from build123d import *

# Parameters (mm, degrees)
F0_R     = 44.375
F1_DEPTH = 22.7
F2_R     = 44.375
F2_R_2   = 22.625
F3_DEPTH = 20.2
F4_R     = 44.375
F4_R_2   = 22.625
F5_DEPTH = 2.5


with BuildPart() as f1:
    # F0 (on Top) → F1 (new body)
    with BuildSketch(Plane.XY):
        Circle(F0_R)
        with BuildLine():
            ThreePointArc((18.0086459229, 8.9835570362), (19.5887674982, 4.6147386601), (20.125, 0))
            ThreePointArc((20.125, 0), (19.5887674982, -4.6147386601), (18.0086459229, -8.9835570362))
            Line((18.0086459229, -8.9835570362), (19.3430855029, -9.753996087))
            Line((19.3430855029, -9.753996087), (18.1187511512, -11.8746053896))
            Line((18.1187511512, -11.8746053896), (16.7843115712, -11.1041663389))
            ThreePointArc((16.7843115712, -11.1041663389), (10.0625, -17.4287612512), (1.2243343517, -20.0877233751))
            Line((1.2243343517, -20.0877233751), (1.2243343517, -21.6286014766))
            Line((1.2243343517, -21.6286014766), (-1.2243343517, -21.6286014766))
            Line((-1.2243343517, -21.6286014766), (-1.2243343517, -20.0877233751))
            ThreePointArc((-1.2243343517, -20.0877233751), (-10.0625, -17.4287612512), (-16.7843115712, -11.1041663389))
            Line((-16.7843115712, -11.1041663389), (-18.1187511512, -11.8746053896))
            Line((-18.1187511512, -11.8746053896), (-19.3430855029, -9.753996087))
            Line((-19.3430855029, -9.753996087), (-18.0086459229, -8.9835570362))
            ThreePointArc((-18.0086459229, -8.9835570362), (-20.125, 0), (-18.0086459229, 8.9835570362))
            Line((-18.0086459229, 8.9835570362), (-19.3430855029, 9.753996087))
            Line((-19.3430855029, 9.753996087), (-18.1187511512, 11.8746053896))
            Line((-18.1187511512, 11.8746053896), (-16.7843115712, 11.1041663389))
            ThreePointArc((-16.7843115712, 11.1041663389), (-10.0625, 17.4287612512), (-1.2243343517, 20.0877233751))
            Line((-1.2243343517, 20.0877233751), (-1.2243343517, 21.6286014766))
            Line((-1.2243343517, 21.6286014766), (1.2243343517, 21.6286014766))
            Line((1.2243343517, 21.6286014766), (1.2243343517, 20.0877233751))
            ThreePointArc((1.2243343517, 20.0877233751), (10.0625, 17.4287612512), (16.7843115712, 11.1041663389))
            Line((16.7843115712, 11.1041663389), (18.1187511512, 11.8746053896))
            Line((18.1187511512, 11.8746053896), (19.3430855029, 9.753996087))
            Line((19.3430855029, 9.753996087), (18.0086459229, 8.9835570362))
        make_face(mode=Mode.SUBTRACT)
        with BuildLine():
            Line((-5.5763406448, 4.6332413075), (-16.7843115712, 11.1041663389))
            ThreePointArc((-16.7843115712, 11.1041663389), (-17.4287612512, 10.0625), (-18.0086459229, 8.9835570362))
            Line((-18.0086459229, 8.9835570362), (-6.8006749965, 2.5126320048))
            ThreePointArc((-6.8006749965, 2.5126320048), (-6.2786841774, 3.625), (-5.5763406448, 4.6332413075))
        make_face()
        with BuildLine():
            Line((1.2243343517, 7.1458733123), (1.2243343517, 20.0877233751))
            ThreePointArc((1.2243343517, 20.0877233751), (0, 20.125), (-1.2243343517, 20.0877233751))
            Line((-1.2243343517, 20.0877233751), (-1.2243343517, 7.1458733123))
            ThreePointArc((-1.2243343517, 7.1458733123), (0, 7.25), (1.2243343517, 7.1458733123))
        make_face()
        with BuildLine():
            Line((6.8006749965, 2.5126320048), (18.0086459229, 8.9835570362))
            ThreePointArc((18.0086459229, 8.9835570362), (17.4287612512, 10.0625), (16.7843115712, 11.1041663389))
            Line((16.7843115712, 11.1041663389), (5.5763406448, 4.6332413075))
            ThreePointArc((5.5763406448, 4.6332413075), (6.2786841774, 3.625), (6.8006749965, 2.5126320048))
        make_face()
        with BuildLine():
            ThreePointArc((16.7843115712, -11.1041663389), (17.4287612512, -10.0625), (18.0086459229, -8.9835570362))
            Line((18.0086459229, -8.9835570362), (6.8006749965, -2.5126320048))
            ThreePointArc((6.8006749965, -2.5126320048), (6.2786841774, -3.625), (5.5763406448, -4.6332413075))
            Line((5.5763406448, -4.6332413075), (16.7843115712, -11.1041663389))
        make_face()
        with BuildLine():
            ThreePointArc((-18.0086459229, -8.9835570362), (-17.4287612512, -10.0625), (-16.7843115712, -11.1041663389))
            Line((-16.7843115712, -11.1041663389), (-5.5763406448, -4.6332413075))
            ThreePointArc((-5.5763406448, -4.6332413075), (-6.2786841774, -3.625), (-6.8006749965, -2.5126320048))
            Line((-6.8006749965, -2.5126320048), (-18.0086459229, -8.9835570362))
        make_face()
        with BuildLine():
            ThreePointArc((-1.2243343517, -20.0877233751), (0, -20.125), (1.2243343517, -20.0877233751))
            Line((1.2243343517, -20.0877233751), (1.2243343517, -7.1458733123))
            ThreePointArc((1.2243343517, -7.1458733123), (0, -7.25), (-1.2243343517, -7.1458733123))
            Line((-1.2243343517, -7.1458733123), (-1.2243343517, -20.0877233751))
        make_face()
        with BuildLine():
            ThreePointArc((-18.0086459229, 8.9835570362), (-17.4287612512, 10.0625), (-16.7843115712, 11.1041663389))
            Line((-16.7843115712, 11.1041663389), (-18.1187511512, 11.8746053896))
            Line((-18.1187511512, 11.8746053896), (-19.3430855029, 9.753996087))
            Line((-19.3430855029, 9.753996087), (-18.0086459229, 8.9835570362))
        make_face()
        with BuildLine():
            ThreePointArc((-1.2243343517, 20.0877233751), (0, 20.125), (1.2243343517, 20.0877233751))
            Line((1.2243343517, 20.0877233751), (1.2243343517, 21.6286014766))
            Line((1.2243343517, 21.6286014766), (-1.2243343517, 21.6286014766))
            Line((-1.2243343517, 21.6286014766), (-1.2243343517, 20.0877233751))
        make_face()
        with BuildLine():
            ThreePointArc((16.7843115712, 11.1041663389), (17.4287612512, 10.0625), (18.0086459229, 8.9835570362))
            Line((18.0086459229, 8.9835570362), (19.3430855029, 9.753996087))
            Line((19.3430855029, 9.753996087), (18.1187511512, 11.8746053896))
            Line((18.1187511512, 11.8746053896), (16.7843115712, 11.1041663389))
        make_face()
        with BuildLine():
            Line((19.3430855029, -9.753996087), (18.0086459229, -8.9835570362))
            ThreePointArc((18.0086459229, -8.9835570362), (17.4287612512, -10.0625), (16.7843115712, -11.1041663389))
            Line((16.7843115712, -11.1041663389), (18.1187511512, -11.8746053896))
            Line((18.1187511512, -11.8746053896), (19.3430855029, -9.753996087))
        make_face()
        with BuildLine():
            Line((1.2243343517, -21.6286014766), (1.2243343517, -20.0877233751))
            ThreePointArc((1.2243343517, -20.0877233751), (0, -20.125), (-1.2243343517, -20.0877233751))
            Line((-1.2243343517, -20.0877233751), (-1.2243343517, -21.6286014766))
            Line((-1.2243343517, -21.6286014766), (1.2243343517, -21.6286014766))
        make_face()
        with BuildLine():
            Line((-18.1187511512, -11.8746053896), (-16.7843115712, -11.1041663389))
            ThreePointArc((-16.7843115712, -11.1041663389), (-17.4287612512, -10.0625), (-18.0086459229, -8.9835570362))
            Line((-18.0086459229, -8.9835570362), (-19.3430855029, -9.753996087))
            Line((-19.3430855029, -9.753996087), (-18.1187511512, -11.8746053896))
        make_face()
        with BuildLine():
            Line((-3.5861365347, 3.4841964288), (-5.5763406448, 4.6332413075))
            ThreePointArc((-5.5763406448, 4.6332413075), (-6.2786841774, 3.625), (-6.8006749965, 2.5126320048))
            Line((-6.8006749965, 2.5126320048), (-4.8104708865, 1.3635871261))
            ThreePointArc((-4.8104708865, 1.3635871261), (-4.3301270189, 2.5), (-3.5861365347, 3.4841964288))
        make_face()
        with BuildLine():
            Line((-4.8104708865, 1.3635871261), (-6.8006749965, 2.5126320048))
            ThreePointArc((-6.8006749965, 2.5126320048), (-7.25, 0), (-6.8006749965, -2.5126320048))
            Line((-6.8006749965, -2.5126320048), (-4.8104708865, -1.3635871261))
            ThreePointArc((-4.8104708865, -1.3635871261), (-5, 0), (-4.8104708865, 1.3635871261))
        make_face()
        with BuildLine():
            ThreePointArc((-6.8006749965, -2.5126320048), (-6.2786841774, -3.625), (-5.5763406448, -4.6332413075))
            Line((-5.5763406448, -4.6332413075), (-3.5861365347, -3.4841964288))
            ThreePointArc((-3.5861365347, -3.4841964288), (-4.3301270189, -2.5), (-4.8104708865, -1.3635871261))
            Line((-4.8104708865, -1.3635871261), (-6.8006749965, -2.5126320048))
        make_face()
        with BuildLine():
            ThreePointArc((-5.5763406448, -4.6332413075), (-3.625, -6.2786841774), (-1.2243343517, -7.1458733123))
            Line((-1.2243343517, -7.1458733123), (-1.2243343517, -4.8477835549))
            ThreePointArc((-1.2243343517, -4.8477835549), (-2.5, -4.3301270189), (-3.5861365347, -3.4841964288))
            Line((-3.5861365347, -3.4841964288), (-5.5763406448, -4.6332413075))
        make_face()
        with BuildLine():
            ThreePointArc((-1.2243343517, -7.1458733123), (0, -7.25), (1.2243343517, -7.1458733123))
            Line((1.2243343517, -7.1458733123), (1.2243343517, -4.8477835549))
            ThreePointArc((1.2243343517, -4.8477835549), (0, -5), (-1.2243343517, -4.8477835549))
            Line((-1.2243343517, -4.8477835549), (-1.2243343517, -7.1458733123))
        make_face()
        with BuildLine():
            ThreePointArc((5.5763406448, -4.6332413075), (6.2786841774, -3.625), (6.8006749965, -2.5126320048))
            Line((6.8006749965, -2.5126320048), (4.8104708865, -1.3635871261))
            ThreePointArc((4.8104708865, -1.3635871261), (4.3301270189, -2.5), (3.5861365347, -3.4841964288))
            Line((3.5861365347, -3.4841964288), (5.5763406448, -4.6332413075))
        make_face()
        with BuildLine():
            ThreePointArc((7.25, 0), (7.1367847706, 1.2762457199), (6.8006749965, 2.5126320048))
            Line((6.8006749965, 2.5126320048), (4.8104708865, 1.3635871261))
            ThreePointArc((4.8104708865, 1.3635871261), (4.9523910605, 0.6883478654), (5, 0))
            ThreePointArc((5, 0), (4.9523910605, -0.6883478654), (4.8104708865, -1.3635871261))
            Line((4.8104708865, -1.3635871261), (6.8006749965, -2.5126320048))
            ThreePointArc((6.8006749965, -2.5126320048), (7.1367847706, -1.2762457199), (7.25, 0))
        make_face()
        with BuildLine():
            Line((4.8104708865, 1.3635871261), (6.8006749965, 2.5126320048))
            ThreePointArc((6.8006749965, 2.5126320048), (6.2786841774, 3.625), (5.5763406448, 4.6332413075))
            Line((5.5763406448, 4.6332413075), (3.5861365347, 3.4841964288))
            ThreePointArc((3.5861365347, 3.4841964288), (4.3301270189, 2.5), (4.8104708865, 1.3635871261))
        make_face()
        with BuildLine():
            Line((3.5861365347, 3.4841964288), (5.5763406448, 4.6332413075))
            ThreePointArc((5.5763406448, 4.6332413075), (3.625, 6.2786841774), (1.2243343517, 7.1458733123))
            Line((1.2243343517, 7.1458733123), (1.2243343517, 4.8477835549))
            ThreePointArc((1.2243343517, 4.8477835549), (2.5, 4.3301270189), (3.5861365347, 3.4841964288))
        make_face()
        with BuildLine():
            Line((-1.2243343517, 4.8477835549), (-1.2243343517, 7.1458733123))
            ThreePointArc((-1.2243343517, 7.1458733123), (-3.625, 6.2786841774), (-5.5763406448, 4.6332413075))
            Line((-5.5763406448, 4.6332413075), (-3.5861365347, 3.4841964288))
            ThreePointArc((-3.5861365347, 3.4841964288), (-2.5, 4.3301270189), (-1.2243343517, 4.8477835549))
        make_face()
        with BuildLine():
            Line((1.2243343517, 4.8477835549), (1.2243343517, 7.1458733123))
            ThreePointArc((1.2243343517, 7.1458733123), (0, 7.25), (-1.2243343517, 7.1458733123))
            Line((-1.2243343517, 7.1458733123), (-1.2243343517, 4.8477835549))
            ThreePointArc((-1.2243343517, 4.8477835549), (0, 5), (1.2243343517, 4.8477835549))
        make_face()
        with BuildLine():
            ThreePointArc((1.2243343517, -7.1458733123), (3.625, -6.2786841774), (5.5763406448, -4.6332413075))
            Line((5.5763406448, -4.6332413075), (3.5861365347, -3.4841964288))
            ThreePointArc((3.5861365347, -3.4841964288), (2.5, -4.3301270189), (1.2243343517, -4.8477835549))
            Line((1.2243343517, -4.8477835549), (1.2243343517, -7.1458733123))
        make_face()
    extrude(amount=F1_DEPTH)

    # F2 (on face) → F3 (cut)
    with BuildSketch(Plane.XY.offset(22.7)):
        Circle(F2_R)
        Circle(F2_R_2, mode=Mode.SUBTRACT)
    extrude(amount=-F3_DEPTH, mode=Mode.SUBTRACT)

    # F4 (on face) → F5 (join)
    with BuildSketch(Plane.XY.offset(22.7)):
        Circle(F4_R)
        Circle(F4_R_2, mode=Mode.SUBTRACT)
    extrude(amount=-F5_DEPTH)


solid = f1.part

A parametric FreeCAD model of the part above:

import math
import FreeCAD as App
import Part
import Sketcher
Q = App.Units.Quantity

doc = App.newDocument("Part")
params = doc.addObject("Spreadsheet::Sheet", "Params")
for row, (alias, value) in enumerate([
    ("sketch1_radius", "5 mm"),
    ("sketch1_diameter", "88.75 mm"),
    ("sketch1_radius2", "7.25 mm"),
    ("pad1_length", "22.7 mm"),
    ("sketch2_diameter", "88.75 mm"),
    ("sketch2_diameter2", "45.25 mm"),
    ("pocket1_length", "20.2 mm"),
    ("sketch3_diameter", "88.75 mm"),
    ("sketch3_diameter2", "45.25 mm"),
    ("pad2_length", "2.5 mm"),
], start=1):
    params.set(f"A{row}", alias)
    params.set(f"B{row}", "=" + value)
    params.setAlias(f"B{row}", alias)

body = doc.addObject("PartDesign::Body", "Body")

# Sketch on XY plane
sketch1 = body.newObject("Sketcher::SketchObject", "Sketch")
sketch1.AttachmentSupport = (doc.getObject("XY_Plane"), [""])
sketch1.MapMode = "FlatFace"
sketch1.addGeometry([
    Part.Circle(App.Vector(0, 0, 0), App.Vector(0, 0, 1), 44.4),  # 0
    Part.ArcOfCircle(Part.Circle(App.Vector(0, 0, 0), App.Vector(0, 0, 1), 7.3), math.radians(-140), math.radians(-100)),  # 1
    Part.LineSegment(App.Vector(-1.2, -7.1, 0), App.Vector(-1.2, -20.1, 0)),  # 2
    Part.ArcOfCircle(Part.Circle(App.Vector(0, 0, 0), App.Vector(0, 0, 1), 20.1), math.radians(-147), math.radians(-93)),  # 3
    Part.LineSegment(App.Vector(-16.8, -11.1, 0), App.Vector(-5.6, -4.6, 0)),  # 4
    Part.ArcOfCircle(Part.Circle(App.Vector(0, 0, 0), App.Vector(0, 0, 1), 5), math.radians(104), math.radians(136)),  # 5
    Part.ArcOfCircle(Part.Circle(App.Vector(0, 0, 0), App.Vector(0, 0, 1), 5), math.radians(76), math.radians(104)),  # 6
    Part.ArcOfCircle(Part.Circle(App.Vector(0, 0, 0), App.Vector(0, 0, 1), 5), math.radians(44), math.radians(76)),  # 7
    Part.ArcOfCircle(Part.Circle(App.Vector(0, 0, 0), App.Vector(0, 0, 1), 5), math.radians(16), math.radians(44)),  # 8
    Part.ArcOfCircle(Part.Circle(App.Vector(0, 0, 0), App.Vector(0, 0, 1), 5), math.radians(0), math.radians(15.83)),  # 9
    Part.ArcOfCircle(Part.Circle(App.Vector(0, 0, 0), App.Vector(0, 0, 1), 5), math.radians(-15.83), math.radians(0)),  # 10
    Part.ArcOfCircle(Part.Circle(App.Vector(0, 0, 0), App.Vector(0, 0, 1), 5), math.radians(-44), math.radians(-16)),  # 11
    Part.ArcOfCircle(Part.Circle(App.Vector(0, 0, 0), App.Vector(0, 0, 1), 5), math.radians(-76), math.radians(-44)),  # 12
    Part.ArcOfCircle(Part.Circle(App.Vector(0, 0, 0), App.Vector(0, 0, 1), 5), math.radians(-104), math.radians(-76)),  # 13
    Part.ArcOfCircle(Part.Circle(App.Vector(0, 0, 0), App.Vector(0, 0, 1), 5), math.radians(-136), math.radians(-104)),  # 14
    Part.ArcOfCircle(Part.Circle(App.Vector(0, 0, 0), App.Vector(0, 0, 1), 5), math.radians(-164), math.radians(-136)),  # 15
    Part.ArcOfCircle(Part.Circle(App.Vector(0, 0, 0), App.Vector(0, 0, 1), 5), math.radians(164), math.radians(196)),  # 16
    Part.ArcOfCircle(Part.Circle(App.Vector(0, 0, 0), App.Vector(0, 0, 1), 5), math.radians(136), math.radians(164)),  # 17
    Part.LineSegment(App.Vector(5.6, -4.6, 0), App.Vector(16.8, -11.1, 0)),  # 18
    Part.ArcOfCircle(Part.Circle(App.Vector(0, 0, 0), App.Vector(0, 0, 1), 20.1), math.radians(-87), math.radians(-33)),  # 19
    Part.LineSegment(App.Vector(1.2, -20.1, 0), App.Vector(1.2, -7.1, 0)),  # 20
    Part.ArcOfCircle(Part.Circle(App.Vector(0, 0, 0), App.Vector(0, 0, 1), 7.3), math.radians(-80), math.radians(-40)),  # 21
    Part.ArcOfCircle(Part.Circle(App.Vector(0, 0, 0), App.Vector(0, 0, 1), 7.2), math.radians(160), math.radians(200)),  # 22
    Part.LineSegment(App.Vector(-6.8, -2.5, 0), App.Vector(-18, -9, 0)),  # 23
    Part.ArcOfCircle(Part.Circle(App.Vector(0, 0, 0), App.Vector(0, 0, 1), 20.1), math.radians(153), math.radians(207)),  # 24
    Part.LineSegment(App.Vector(-18, 9, 0), App.Vector(-6.8, 2.5, 0)),  # 25
    Part.LineSegment(App.Vector(-1.2, 20.1, 0), App.Vector(-1.2, 7.1, 0)),  # 26
    Part.ArcOfCircle(Part.Circle(App.Vector(0, 0, 0), App.Vector(0, 0, 1), 7.3), math.radians(100), math.radians(140)),  # 27
    Part.LineSegment(App.Vector(-5.6, 4.6, 0), App.Vector(-16.8, 11.1, 0)),  # 28
    Part.ArcOfCircle(Part.Circle(App.Vector(0, 0, 0), App.Vector(0, 0, 1), 20.1), math.radians(93), math.radians(147)),  # 29
    Part.ArcOfCircle(Part.Circle(App.Vector(0, 0, 0), App.Vector(0, 0, 1), 7.3), math.radians(0), math.radians(20)),  # 30
    Part.LineSegment(App.Vector(6.8, 2.5, 0), App.Vector(18, 9, 0)),  # 31
    Part.ArcOfCircle(Part.Circle(App.Vector(0, 0, 0), App.Vector(0, 0, 1), 20.1), math.radians(0), math.radians(27)),  # 32
    Part.ArcOfCircle(Part.Circle(App.Vector(0, 0, 0), App.Vector(0, 0, 1), 20.1), math.radians(-27), math.radians(0)),  # 33
    Part.LineSegment(App.Vector(18, -9, 0), App.Vector(6.8, -2.5, 0)),  # 34
    Part.ArcOfCircle(Part.Circle(App.Vector(0, 0, 0), App.Vector(0, 0, 1), 7.3), math.radians(-20), math.radians(0)),  # 35
    Part.ArcOfCircle(Part.Circle(App.Vector(0, 0, 0), App.Vector(0, 0, 1), 7.3), math.radians(40), math.radians(80)),  # 36
    Part.LineSegment(App.Vector(1.2, 7.1, 0), App.Vector(1.2, 20.1, 0)),  # 37
    Part.ArcOfCircle(Part.Circle(App.Vector(0, 0, 0), App.Vector(0, 0, 1), 20.1), math.radians(33), math.radians(87)),  # 38
    Part.LineSegment(App.Vector(16.8, 11.1, 0), App.Vector(5.6, 4.6, 0)),  # 39
], False)
sketch1.addConstraint([
    Sketcher.Constraint("Coincident", 1, 2, 2, 1),
    Sketcher.Constraint("Coincident", 2, 2, 3, 2),
    Sketcher.Constraint("Coincident", 3, 1, 4, 1),
    Sketcher.Constraint("Coincident", 4, 2, 1, 1),
    Sketcher.Constraint("Tangent", 5, 1, 6, 2),
    Sketcher.Constraint("Tangent", 6, 1, 7, 2),
    Sketcher.Constraint("Tangent", 7, 1, 8, 2),
    Sketcher.Constraint("Tangent", 8, 1, 9, 2),
    Sketcher.Constraint("Tangent", 9, 1, 10, 2),
    Sketcher.Constraint("Tangent", 10, 1, 11, 2),
    Sketcher.Constraint("Tangent", 11, 1, 12, 2),
    Sketcher.Constraint("Tangent", 12, 1, 13, 2),
    Sketcher.Constraint("Tangent", 13, 1, 14, 2),
    Sketcher.Constraint("Tangent", 14, 1, 15, 2),
    Sketcher.Constraint("Tangent", 15, 1, 16, 2),
    Sketcher.Constraint("Tangent", 16, 1, 17, 2),
    Sketcher.Constraint("Tangent", 17, 1, 5, 2),
    Sketcher.Constraint("Coincident", 18, 2, 19, 2),
    Sketcher.Constraint("Coincident", 19, 1, 20, 1),
    Sketcher.Constraint("Coincident", 20, 2, 21, 1),
    Sketcher.Constraint("Coincident", 21, 2, 18, 1),
    Sketcher.Constraint("Coincident", 22, 2, 23, 1),
    Sketcher.Constraint("Coincident", 23, 2, 24, 2),
    Sketcher.Constraint("Coincident", 24, 1, 25, 1),
    Sketcher.Constraint("Coincident", 25, 2, 22, 1),
    Sketcher.Constraint("Coincident", 26, 2, 27, 1),
    Sketcher.Constraint("Coincident", 27, 2, 28, 1),
    Sketcher.Constraint("Coincident", 28, 2, 29, 2),
    Sketcher.Constraint("Coincident", 29, 1, 26, 1),
    Sketcher.Constraint("Coincident", 30, 2, 31, 1),
    Sketcher.Constraint("Coincident", 31, 2, 32, 2),
    Sketcher.Constraint("Tangent", 32, 1, 33, 2),
    Sketcher.Constraint("Coincident", 33, 1, 34, 1),
    Sketcher.Constraint("Coincident", 34, 2, 35, 1),
    Sketcher.Constraint("Tangent", 35, 2, 30, 1),
    Sketcher.Constraint("Coincident", 36, 2, 37, 1),
    Sketcher.Constraint("Coincident", 37, 2, 38, 2),
    Sketcher.Constraint("Coincident", 38, 1, 39, 1),
    Sketcher.Constraint("Coincident", 39, 2, 36, 1),
    Sketcher.Constraint("Vertical", 2),
    Sketcher.Constraint("Vertical", 20),
    Sketcher.Constraint("Vertical", 26),
    Sketcher.Constraint("Vertical", 37),
    Sketcher.Constraint("Coincident", 0, 3, -1, 1),
    Sketcher.Constraint("Coincident", 1, 3, -1, 1),
    Sketcher.Constraint("Coincident", 3, 3, -1, 1),
    Sketcher.Constraint("Coincident", 5, 3, -1, 1),
    Sketcher.Constraint("Coincident", 7, 3, -1, 1),
    Sketcher.Constraint("Coincident", 9, 3, -1, 1),
    Sketcher.Constraint("Coincident", 11, 3, -1, 1),
    Sketcher.Constraint("Coincident", 13, 3, -1, 1),
    Sketcher.Constraint("Coincident", 15, 3, -1, 1),
    Sketcher.Constraint("Coincident", 19, 3, -1, 1),
    Sketcher.Constraint("Coincident", 21, 3, -1, 1),
    Sketcher.Constraint("Coincident", 22, 3, -1, 1),
    Sketcher.Constraint("Coincident", 24, 3, -1, 1),
    Sketcher.Constraint("Coincident", 27, 3, -1, 1),
    Sketcher.Constraint("Coincident", 29, 3, -1, 1),
    Sketcher.Constraint("Coincident", 30, 3, -1, 1),
    Sketcher.Constraint("Coincident", 32, 3, -1, 1),
    Sketcher.Constraint("Coincident", 36, 3, -1, 1),
    Sketcher.Constraint("Coincident", 38, 3, -1, 1),
    Sketcher.Constraint("Equal", 3, 19),
    Sketcher.Constraint("Equal", 1, 21),
    Sketcher.Constraint("Equal", 21, 22),
    Sketcher.Constraint("Equal", 19, 24),
    Sketcher.Constraint("Equal", 22, 27),
    Sketcher.Constraint("Equal", 24, 29),
    Sketcher.Constraint("Equal", 27, 30),
    Sketcher.Constraint("Equal", 29, 32),
    Sketcher.Constraint("Equal", 32, 33),
    Sketcher.Constraint("Equal", 30, 35),
    Sketcher.Constraint("Equal", 35, 36),
    Sketcher.Constraint("Equal", 33, 38),
    Sketcher.Constraint("PointOnObject", 9, 1, -1),
    Sketcher.Constraint("PointOnObject", 32, 1, -1),
    Sketcher.Constraint("PointOnObject", 35, 2, -1),
    Sketcher.Constraint("Parallel", 4, 23),
    Sketcher.Constraint("Parallel", 18, 25),
    Sketcher.Constraint("Parallel", 25, 28),
    Sketcher.Constraint("Parallel", 23, 31),
    Sketcher.Constraint("Parallel", 28, 34),
    Sketcher.Constraint("Parallel", 31, 39),
    Sketcher.Constraint("Horizontal", 5, 1, 6, 1),
    Sketcher.Constraint("Horizontal", 12, 1, 13, 1),
    Sketcher.Constraint("Horizontal", 11, 1, 14, 1),
    Sketcher.Constraint("Horizontal", 10, 1, 15, 1),
    Sketcher.Constraint("Horizontal", 8, 1, 16, 1),
    Sketcher.Constraint("Horizontal", 7, 1, 17, 1),
    Sketcher.Constraint("Horizontal", 3, 1, 18, 2),
    Sketcher.Constraint("Horizontal", 2, 2, 19, 1),
    Sketcher.Constraint("Horizontal", 4, 2, 21, 2),
    Sketcher.Constraint("Horizontal", 25, 2, 30, 2),
    Sketcher.Constraint("Horizontal", 23, 2, 33, 1),
    Sketcher.Constraint("Horizontal", 26, 2, 36, 2),
    Sketcher.Constraint("Horizontal", 28, 2, 38, 1),
    Sketcher.Constraint("Vertical", 2, 2, 5, 1),
    Sketcher.Constraint("Vertical", 8, 1, 10, 1),
    Sketcher.Constraint("Vertical", 7, 1, 11, 1),
    Sketcher.Constraint("Vertical", 6, 1, 12, 1),
    Sketcher.Constraint("Vertical", 23, 2, 24, 1),
    Sketcher.Constraint("Vertical", 13, 1, 26, 2),
    Sketcher.Constraint("Vertical", 4, 2, 27, 2),
    Sketcher.Constraint("Equal", 18, 23),
    Sketcher.Constraint("Radius", 5, Q("5 mm")),
    Sketcher.Constraint("Diameter", 0, Q("88.75 mm")),
    Sketcher.Constraint("Angle", 4, Q("30 deg")),
    Sketcher.Constraint("Radius", 1, Q("7.25 mm")),
    Sketcher.Constraint("Radius", 3, Q("20.125 mm")),
    Sketcher.Constraint("DistanceY", 2, 2, 2, 1, Q("12.94185 mm")),
    Sketcher.Constraint("Distance", 4, Q("12.94185 mm")),
    Sketcher.Constraint("DistanceX", -1, 1, 8, 1, Q("4.810471 mm")),
    Sketcher.Constraint("DistanceX", -1, 1, 7, 1, Q("3.586137 mm")),
])
sketch1.setExpression("Constraints[104]", "Params.sketch1_radius")
sketch1.setExpression("Constraints[105]", "Params.sketch1_diameter")
sketch1.setExpression("Constraints[107]", "Params.sketch1_radius2")
pad1 = body.newObject("PartDesign::Pad", "Pad")
pad1.Profile = sketch1
pad1.setExpression("Length", "Params.pad1_length")

# Sketch on XY plane
sketch2 = body.newObject("Sketcher::SketchObject", "Sketch001")
sketch2.AttachmentSupport = (doc.getObject("XY_Plane"), [""])
sketch2.MapMode = "FlatFace"
sketch2.AttachmentOffset = App.Placement(App.Vector(0, 0, 22.7), App.Rotation())
sketch2.addGeometry([
    Part.Circle(App.Vector(0, 0, 0), App.Vector(0, 0, 1), 44),
    Part.Circle(App.Vector(0, 0, 0), App.Vector(0, 0, 1), 23),
], False)
sketch2.addConstraint([
    Sketcher.Constraint("Coincident", 0, 3, -1, 1),
    Sketcher.Constraint("Coincident", 1, 3, -1, 1),
    Sketcher.Constraint("Diameter", 0, Q("88.75 mm")),
    Sketcher.Constraint("Diameter", 1, Q("45.25 mm")),
])
sketch2.setExpression("Constraints[2]", "Params.sketch2_diameter")
sketch2.setExpression("Constraints[3]", "Params.sketch2_diameter2")
pocket1 = body.newObject("PartDesign::Pocket", "Pocket")
pocket1.Profile = sketch2
pocket1.setExpression("Length", "Params.pocket1_length")

# Sketch on XY plane
sketch3 = body.newObject("Sketcher::SketchObject", "Sketch002")
sketch3.AttachmentSupport = (doc.getObject("XY_Plane"), [""])
sketch3.MapMode = "FlatFace"
sketch3.AttachmentOffset = App.Placement(App.Vector(0, 0, 22.7), App.Rotation())
sketch3.addGeometry([
    Part.Circle(App.Vector(0, 0, 0), App.Vector(0, 0, 1), 44),
    Part.Circle(App.Vector(0, 0, 0), App.Vector(0, 0, 1), 23),
], False)
sketch3.addConstraint([
    Sketcher.Constraint("Coincident", 0, 3, -1, 1),
    Sketcher.Constraint("Coincident", 1, 3, -1, 1),
    Sketcher.Constraint("Diameter", 0, Q("88.75 mm")),
    Sketcher.Constraint("Diameter", 1, Q("45.25 mm")),
])
sketch3.setExpression("Constraints[2]", "Params.sketch3_diameter")
sketch3.setExpression("Constraints[3]", "Params.sketch3_diameter2")
pad2 = body.newObject("PartDesign::Pad", "Pad001")
pad2.Profile = sketch3
pad2.setExpression("Length", "Params.pad2_length")
pad2.Reversed = True

doc.recompute()
